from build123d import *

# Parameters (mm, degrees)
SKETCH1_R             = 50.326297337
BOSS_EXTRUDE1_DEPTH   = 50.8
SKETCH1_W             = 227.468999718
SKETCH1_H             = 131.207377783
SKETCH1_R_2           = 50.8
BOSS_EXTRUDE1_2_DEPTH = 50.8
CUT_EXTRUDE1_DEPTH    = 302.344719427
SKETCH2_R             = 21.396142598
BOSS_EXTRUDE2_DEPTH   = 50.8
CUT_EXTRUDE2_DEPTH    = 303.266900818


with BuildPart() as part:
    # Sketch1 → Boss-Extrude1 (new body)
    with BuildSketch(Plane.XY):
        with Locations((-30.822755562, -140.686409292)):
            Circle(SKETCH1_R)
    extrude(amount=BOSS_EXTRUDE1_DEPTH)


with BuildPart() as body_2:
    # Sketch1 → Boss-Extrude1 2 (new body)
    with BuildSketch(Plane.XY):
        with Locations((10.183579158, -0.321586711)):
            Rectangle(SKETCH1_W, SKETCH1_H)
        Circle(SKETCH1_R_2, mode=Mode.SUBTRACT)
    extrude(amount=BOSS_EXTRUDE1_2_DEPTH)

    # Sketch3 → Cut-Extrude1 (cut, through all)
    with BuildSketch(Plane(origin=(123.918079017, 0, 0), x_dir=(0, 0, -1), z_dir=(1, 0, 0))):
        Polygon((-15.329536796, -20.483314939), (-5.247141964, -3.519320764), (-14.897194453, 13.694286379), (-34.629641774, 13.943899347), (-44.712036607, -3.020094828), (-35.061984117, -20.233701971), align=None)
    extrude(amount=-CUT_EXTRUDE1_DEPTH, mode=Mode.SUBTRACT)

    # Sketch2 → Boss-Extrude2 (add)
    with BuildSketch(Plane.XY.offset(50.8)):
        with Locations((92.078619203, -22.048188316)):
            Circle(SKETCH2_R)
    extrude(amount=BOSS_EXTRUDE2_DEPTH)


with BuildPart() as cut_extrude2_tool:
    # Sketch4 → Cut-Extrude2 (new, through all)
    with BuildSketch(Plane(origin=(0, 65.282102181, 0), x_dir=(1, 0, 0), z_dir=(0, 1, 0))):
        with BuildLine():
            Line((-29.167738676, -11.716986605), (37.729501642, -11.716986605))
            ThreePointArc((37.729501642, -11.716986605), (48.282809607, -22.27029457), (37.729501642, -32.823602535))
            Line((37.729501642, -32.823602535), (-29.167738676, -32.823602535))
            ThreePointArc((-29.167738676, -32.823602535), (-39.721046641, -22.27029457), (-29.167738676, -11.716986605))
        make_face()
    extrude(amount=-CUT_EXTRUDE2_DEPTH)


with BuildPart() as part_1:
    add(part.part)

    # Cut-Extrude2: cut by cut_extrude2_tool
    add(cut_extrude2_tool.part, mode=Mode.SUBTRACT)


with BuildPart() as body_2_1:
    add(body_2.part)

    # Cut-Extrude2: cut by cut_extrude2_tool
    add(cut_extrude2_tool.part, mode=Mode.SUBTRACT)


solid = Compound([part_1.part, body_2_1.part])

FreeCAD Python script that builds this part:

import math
import FreeCAD as App
import Part
import Sketcher

V = App.Vector
Q = App.Units.Quantity


def add_polygon(sketch, points):
    """Adds a closed chain of lines whose ends are joined by coincident constraints."""
    first, n = sketch.GeometryCount, len(points)
    for a, b in zip(points, points[1:] + points[:1]):
        sketch.addGeometry(Part.LineSegment(App.Vector(*a, 0), App.Vector(*b, 0)), False)
    for i in range(n):
        sketch.addConstraint(Sketcher.Constraint("Coincident", first + i, 2, first + (i + 1) % n, 1))

doc = App.newDocument("Part")
params = doc.addObject("Spreadsheet::Sheet", "Params")
for row, (alias, value) in enumerate([
    ("pad1_length", "2 in"),
    ("sketch2_diameter", "4 in"),
    ("pad2_length", "2 in"),
    ("pad3_length", "2 in"),
    ("pad4_length", "303.266901 mm"),
], start=1):
    params.set(f"A{row}", alias)
    params.set(f"B{row}", "=" + value)
    params.setAlias(f"B{row}", alias)

body = doc.addObject("PartDesign::Body", "Body")

sketch1 = body.newObject("Sketcher::SketchObject", "Sketch")
sketch1.AttachmentSupport = (doc.getObject("XY_Plane"), [""])
sketch1.MapMode = "FlatFace"
sketch1.addGeometry(Part.Circle(V(-31, -141, 0), V(0, 0, 1), 50), False)
sketch1.addConstraint(Sketcher.Constraint("Diameter", 0, Q("100.652595 mm")))
sketch1.addConstraint(Sketcher.Constraint("DistanceY", 0, 3, -1, 1, Q("140.686409 mm")))
sketch1.addConstraint(Sketcher.Constraint("DistanceX", 0, 3, -1, 1, Q("30.822756 mm")))
pad1 = body.newObject("PartDesign::Pad", "Pad")
pad1.Profile = sketch1
pad1.setExpression("Length", "Params.pad1_length")
body2 = doc.addObject("PartDesign::Body", "Body001")

sketch2 = body2.newObject("Sketcher::SketchObject", "Sketch001")
sketch2.AttachmentSupport = (doc.getObject("XY_Plane001"), [""])
sketch2.MapMode = "FlatFace"
add_polygon(sketch2, [(-104, 65), (-104, -66), (124, -66), (124, 65)])
sketch2.addGeometry(Part.Circle(V(0, 0, 0), V(0, 0, 1), 51), False)
sketch2.addConstraint(Sketcher.Constraint("Vertical", 0))
sketch2.addConstraint(Sketcher.Constraint("Horizontal", 1))
sketch2.addConstraint(Sketcher.Constraint("Vertical", 2))
sketch2.addConstraint(Sketcher.Constraint("Horizontal", 3))
sketch2.addConstraint(Sketcher.Constraint("Coincident", 4, 3, -1, 1))
sketch2.addConstraint(Sketcher.Constraint("Diameter", 4, Q("4 in")))
sketch2.addConstraint(Sketcher.Constraint("DistanceX", 1, 1, 1, 2, Q("227.469 mm")))
sketch2.addConstraint(Sketcher.Constraint("DistanceY", 0, 2, 0, 1, Q("131.207378 mm")))
sketch2.addConstraint(Sketcher.Constraint("DistanceX", 0, 2, -1, 1, Q("103.550921 mm")))
sketch2.addConstraint(Sketcher.Constraint("DistanceY", 0, 2, -1, 1, Q("65.925276 mm")))
sketch2.setExpression("Constraints[9]", "Params.sketch2_diameter")
pad2 = body2.newObject("PartDesign::Pad", "Pad001")
pad2.Profile = sketch2
pad2.setExpression("Length", "Params.pad2_length")

sketch3 = body2.newObject("Sketcher::SketchObject", "Sketch002")
sketch3.AttachmentSupport = (doc.getObject("YZ_Plane001"), [""])
sketch3.MapMode = "FlatFace"
sketch3.AttachmentOffset = App.Placement(V(0, 0, 123.918079), App.Rotation())
add_polygon(sketch3, [(-20, 15), (-4, 5), (14, 15), (14, 35), (-3, 45), (-20, 35)])
sketch3.addConstraint(Sketcher.Constraint("Parallel", 0, 3))
sketch3.addConstraint(Sketcher.Constraint("Parallel", 1, 4))
sketch3.addConstraint(Sketcher.Constraint("Parallel", 2, 5))
sketch3.addConstraint(Sketcher.Constraint("Equal", 0, 1))
sketch3.addConstraint(Sketcher.Constraint("Equal", 1, 2))
sketch3.addConstraint(Sketcher.Constraint("Equal", 2, 3))
sketch3.addConstraint(Sketcher.Constraint("DistanceX", -1, 1, 2, 2, Q("13.943899 mm")))
sketch3.addConstraint(Sketcher.Constraint("DistanceX", 4, 2, -1, 1, Q("20.233702 mm")))
sketch3.addConstraint(Sketcher.Constraint("DistanceY", 0, 2, 2, 2, Q("29.3825 mm")))
sketch3.addConstraint(Sketcher.Constraint("DistanceX", 0, 2, -1, 1, Q("3.519321 mm")))
sketch3.addConstraint(Sketcher.Constraint("DistanceY", -1, 1, 0, 2, Q("5.247142 mm")))
sketch3.addConstraint(Sketcher.Constraint("DistanceX", 4, 2, 1, 2, Q("33.927988 mm")))
pocket1 = body2.newObject("PartDesign::Pocket", "Pocket")
pocket1.Profile = sketch3
pocket1.Type = "ThroughAll"

sketch4 = body2.newObject("Sketcher::SketchObject", "Sketch003")
sketch4.AttachmentSupport = (doc.getObject("XY_Plane001"), [""])
sketch4.MapMode = "FlatFace"
sketch4.AttachmentOffset = App.Placement(V(0, 0, 2 * 25.4), App.Rotation())
sketch4.addGeometry(Part.Circle(V(92, -22, 0), V(0, 0, 1), 21), False)
sketch4.addConstraint(Sketcher.Constraint("Diameter", 0, Q("42.792285 mm")))
sketch4.addConstraint(Sketcher.Constraint("DistanceX", -1, 1, 0, 3, Q("92.078619 mm")))
sketch4.addConstraint(Sketcher.Constraint("DistanceY", 0, 3, -1, 1, Q("22.048188 mm")))
pad3 = body2.newObject("PartDesign::Pad", "Pad002")
pad3.Profile = sketch4
pad3.setExpression("Length", "Params.pad3_length")
body3 = doc.addObject("PartDesign::Body", "Body002")

sketch5 = body3.newObject("Sketcher::SketchObject", "Sketch004")
sketch5.AttachmentSupport = (doc.getObject("XZ_Plane002"), [""])
sketch5.MapMode = "FlatFace"
sketch5.AttachmentOffset = App.Placement(V(0, 0, -65.282102), App.Rotation())
sketch5.addGeometry(Part.LineSegment(V(38, 12, 0), V(-29, 12, 0)), False)
sketch5.addGeometry(Part.ArcOfCircle(Part.Circle(V(-29, 22, 0), V(0, 0, 1), 11), math.radians(90), math.radians(270)), False)
sketch5.addGeometry(Part.LineSegment(V(-29, 33, 0), V(38, 33, 0)), False)
sketch5.addGeometry(Part.ArcOfCircle(Part.Circle(V(38, 22, 0), V(0, 0, 1), 11), math.radians(-90), math.radians(90)), False)
sketch5.addConstraint(Sketcher.Constraint("Tangent", 0, 2, 1, 2))
sketch5.addConstraint(Sketcher.Constraint("Tangent", 1, 1, 2, 1))
sketch5.addConstraint(Sketcher.Constraint("Tangent", 2, 2, 3, 2))
sketch5.addConstraint(Sketcher.Constraint("Tangent", 3, 1, 0, 1))
sketch5.addConstraint(Sketcher.Constraint("Horizontal", 0))
sketch5.addConstraint(Sketcher.Constraint("Horizontal", 2))
sketch5.addConstraint(Sketcher.Constraint("Radius", 1, Q("10.553308 mm")))
sketch5.addConstraint(Sketcher.Constraint("DistanceX", 0, 2, 0, 1, Q("66.89724 mm")))
sketch5.addConstraint(Sketcher.Constraint("DistanceX", -1, 1, 3, 3, Q("37.729502 mm")))
sketch5.addConstraint(Sketcher.Constraint("DistanceY", -1, 1, 1, 3, Q("22.270295 mm")))
pad4 = body3.newObject("PartDesign::Pad", "Pad003")
pad4.Profile = sketch5
pad4.setExpression("Length", "Params.pad4_length")
doc.recompute()

body4 = doc.addObject("PartDesign::Body", "Body003")
body4.BaseFeature = body3
boolean = body.newObject("PartDesign::Boolean", "Boolean")
boolean.Type = "Cut"
boolean.addObjects([body4])
doc.recompute()

boolean2 = body2.newObject("PartDesign::Boolean", "Boolean001")
boolean2.Type = "Cut"
boolean2.addObjects([body3])

doc.recompute()
